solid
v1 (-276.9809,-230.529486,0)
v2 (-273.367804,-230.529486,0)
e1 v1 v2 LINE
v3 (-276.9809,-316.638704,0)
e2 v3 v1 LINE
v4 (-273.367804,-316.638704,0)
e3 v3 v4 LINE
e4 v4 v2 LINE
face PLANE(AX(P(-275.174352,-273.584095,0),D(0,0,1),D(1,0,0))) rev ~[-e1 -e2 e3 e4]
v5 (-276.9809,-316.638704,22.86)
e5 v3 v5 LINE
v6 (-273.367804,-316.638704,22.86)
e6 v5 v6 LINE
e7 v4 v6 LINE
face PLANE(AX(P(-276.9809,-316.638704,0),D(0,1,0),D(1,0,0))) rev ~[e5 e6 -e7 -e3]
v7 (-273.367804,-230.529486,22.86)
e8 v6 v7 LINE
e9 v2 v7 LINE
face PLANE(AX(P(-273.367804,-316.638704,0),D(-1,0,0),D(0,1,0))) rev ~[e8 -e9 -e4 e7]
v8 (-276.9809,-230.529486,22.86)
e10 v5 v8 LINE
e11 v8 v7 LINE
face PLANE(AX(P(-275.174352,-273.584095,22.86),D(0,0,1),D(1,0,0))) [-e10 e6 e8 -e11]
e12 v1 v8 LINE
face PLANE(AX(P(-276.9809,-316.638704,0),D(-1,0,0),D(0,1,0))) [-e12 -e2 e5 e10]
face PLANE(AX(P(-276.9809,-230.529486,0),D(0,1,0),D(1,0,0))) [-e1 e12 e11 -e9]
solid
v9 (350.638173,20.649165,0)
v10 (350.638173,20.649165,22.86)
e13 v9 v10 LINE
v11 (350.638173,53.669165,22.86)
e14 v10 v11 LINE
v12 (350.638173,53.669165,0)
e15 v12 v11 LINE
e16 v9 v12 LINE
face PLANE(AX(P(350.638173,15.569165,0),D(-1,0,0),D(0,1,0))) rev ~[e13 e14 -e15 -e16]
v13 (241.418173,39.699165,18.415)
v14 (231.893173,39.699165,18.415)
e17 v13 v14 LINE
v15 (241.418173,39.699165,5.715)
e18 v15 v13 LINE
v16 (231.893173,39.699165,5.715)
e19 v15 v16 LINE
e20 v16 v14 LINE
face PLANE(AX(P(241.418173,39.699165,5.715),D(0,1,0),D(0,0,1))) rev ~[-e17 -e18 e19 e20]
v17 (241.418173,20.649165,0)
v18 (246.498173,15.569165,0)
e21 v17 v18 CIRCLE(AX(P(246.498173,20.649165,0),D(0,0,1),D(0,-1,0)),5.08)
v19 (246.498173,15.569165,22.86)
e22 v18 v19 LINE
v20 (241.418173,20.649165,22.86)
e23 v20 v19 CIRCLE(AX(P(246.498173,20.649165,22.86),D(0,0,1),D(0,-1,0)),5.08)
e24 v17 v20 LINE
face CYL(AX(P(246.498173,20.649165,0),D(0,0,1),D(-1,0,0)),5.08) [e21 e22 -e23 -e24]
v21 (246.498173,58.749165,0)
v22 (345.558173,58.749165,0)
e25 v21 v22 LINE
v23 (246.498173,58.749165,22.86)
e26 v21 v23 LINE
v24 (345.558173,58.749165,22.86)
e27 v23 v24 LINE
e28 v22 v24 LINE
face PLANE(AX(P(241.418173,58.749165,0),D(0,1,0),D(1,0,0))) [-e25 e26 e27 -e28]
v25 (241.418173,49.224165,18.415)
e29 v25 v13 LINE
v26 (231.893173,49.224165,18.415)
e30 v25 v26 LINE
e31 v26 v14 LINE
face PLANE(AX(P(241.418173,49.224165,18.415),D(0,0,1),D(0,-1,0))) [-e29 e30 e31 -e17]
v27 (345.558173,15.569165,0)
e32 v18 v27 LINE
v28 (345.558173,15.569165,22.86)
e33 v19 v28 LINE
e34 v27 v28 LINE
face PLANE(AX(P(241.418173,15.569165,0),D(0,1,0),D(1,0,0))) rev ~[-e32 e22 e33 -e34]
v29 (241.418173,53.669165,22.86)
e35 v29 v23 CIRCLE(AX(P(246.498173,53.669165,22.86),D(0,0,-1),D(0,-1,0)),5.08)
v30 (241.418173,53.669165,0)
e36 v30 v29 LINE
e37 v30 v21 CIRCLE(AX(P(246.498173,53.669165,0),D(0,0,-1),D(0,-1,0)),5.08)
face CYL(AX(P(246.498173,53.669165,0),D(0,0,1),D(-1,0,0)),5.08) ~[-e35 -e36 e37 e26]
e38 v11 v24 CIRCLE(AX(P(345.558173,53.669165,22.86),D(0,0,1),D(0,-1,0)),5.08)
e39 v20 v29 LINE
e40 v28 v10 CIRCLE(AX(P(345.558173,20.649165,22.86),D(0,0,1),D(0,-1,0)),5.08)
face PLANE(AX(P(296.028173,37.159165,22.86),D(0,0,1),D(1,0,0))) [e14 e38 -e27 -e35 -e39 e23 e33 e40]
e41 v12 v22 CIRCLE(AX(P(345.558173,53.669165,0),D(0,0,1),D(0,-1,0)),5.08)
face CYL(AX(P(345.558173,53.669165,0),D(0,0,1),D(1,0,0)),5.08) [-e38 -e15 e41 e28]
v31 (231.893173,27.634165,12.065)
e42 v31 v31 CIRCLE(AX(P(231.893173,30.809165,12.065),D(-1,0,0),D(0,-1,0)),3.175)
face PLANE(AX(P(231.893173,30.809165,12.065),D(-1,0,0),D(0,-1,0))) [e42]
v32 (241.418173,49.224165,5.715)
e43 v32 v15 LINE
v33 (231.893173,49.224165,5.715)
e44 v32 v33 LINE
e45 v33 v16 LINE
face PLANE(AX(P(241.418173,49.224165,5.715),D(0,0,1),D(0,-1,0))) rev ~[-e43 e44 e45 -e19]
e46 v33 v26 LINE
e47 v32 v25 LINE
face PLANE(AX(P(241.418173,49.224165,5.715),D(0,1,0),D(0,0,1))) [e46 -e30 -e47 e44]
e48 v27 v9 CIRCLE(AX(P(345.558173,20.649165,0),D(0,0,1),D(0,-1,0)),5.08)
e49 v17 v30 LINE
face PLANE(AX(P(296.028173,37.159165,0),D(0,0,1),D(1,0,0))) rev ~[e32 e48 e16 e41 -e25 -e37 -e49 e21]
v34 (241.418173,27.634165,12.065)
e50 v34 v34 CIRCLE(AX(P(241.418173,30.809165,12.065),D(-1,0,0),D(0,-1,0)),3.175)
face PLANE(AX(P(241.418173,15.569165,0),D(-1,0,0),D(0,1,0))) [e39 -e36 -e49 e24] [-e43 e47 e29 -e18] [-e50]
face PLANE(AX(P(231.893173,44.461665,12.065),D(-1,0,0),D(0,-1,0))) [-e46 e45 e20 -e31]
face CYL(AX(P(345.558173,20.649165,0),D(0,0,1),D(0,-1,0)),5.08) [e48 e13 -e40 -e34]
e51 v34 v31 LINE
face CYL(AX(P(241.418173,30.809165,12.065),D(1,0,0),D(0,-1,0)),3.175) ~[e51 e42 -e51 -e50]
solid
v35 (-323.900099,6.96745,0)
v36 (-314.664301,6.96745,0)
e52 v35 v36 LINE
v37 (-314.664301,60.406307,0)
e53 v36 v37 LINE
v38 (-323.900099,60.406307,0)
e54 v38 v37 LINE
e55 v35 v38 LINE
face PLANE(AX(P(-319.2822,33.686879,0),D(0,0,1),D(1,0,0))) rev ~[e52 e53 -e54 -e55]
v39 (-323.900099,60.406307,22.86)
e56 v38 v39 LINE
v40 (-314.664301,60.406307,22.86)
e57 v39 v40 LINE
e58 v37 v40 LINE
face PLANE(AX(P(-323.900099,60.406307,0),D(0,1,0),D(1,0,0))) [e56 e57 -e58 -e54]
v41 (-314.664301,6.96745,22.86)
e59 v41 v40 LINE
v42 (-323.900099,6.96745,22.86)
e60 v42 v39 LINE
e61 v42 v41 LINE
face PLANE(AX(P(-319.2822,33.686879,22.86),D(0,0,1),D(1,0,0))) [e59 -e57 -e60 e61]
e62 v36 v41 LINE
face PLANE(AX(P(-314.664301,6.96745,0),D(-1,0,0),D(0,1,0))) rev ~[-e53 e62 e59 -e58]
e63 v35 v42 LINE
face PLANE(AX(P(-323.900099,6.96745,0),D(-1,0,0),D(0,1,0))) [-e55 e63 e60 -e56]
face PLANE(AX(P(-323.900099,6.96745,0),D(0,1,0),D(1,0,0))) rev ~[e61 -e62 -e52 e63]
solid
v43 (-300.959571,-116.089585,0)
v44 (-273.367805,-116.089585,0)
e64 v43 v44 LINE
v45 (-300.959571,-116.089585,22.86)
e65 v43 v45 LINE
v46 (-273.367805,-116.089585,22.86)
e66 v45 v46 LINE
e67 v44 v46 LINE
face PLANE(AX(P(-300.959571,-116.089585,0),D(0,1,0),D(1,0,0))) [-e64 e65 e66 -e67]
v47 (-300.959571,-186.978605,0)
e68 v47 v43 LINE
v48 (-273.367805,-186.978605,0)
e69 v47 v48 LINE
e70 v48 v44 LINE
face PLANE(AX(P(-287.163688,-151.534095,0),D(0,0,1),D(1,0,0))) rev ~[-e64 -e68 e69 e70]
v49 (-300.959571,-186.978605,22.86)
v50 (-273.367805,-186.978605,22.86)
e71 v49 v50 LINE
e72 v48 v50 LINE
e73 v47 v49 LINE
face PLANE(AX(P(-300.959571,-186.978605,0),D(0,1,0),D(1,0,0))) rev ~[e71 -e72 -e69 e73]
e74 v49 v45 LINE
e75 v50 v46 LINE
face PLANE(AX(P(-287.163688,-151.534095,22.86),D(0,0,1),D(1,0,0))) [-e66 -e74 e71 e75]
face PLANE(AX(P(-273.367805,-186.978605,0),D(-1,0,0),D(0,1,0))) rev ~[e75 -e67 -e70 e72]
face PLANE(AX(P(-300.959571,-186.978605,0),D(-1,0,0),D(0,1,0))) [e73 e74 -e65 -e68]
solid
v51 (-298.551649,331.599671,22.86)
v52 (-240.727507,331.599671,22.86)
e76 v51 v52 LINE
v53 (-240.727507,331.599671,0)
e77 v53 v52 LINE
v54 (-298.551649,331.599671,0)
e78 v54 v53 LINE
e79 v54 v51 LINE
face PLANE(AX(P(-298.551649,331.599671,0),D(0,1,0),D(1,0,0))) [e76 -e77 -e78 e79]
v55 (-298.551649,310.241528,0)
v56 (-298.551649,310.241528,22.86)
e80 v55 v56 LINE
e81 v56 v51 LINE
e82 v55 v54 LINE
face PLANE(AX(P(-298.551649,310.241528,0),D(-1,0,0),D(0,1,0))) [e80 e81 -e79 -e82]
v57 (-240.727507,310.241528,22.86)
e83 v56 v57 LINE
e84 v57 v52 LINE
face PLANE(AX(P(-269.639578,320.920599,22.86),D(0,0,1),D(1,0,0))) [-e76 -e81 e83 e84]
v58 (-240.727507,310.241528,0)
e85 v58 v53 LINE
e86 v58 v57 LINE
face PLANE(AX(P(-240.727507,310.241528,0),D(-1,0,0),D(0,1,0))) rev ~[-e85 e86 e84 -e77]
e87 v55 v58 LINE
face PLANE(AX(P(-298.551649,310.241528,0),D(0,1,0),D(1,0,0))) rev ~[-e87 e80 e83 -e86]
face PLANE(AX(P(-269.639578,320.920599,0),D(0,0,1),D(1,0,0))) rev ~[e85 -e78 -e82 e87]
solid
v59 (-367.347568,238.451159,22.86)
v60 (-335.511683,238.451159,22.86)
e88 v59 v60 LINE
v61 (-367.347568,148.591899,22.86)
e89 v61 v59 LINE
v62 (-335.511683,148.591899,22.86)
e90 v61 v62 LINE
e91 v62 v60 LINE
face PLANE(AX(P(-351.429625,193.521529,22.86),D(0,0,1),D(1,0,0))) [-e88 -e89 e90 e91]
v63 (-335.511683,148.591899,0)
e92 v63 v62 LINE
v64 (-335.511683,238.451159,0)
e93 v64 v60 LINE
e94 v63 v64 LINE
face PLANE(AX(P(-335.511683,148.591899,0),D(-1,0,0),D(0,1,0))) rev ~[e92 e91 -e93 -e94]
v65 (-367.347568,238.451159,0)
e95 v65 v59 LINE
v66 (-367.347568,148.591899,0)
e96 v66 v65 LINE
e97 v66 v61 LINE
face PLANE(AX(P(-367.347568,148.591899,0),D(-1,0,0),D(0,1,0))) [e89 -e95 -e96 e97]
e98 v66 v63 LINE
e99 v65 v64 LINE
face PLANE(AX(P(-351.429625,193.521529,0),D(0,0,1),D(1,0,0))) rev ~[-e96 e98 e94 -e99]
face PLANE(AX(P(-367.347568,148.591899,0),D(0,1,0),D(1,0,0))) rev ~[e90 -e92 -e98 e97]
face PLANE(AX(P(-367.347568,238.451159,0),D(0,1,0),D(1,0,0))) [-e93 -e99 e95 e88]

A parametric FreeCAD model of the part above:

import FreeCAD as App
import Part
import Sketcher
Q = App.Units.Quantity


def edges_at(feature, points):
    """Names of the edges that pass closest to the given points."""
    edges = feature.Shape.Edges
    near = lambda p: min(range(len(edges)), key=lambda i: edges[i].distToShape(Part.Vertex(*p))[0])
    return sorted({f"Edge{near(p) + 1}" for p in points})


def add_polygon(sketch, points):
    """Adds a closed chain of lines whose ends are joined by coincident constraints."""
    first, n = sketch.GeometryCount, len(points)
    for a, b in zip(points, points[1:] + points[:1]):
        sketch.addGeometry(Part.LineSegment(App.Vector(*a, 0), App.Vector(*b, 0)), False)
    for i in range(n):
        sketch.addConstraint(Sketcher.Constraint("Coincident", first + i, 2, first + (i + 1) % n, 1))

doc = App.newDocument("Part")
body = doc.addObject("PartDesign::Body", "Body")
body.AllowCompound = True

# Sketch on XY plane
sketch1 = body.newObject("Sketcher::SketchObject", "Sketch")
sketch1.AttachmentSupport = (doc.getObject("XY_Plane"), [""])
sketch1.MapMode = "FlatFace"
add_polygon(sketch1, [(-277, -230.5), (-277, -316.6), (-273.4, -316.6), (-273.4, -230.5)])  # lines 0-3
add_polygon(sketch1, [(-301, -116.1), (-301, -187), (-273.4, -187), (-273.4, -116.1)])  # lines 4-7
add_polygon(sketch1, [(-323.9, 60.4), (-323.9, 7), (-314.7, 7), (-314.7, 60.4)])  # lines 8-11
add_polygon(sketch1, [(-367.3, 238.5), (-367.3, 148.6), (-335.5, 148.6), (-335.5, 238.5)])  # lines 12-15
add_polygon(sketch1, [(-298.6, 331.6), (-298.6, 310.2), (-240.7, 310.2), (-240.7, 331.6)])  # lines 16-19
add_polygon(sketch1, [(241.4, 58.7), (241.4, 15.6), (350.6, 15.6), (350.6, 58.7)])  # lines 20-23
sketch1.addConstraint([
    Sketcher.Constraint("Vertical", 0),
    Sketcher.Constraint("Horizontal", 1),
    Sketcher.Constraint("Vertical", 2),
    Sketcher.Constraint("Horizontal", 3),
    Sketcher.Constraint("Vertical", 4),
    Sketcher.Constraint("Horizontal", 5),
    Sketcher.Constraint("Vertical", 6),
    Sketcher.Constraint("Horizontal", 7),
    Sketcher.Constraint("Vertical", 8),
    Sketcher.Constraint("Horizontal", 9),
    Sketcher.Constraint("Vertical", 10),
    Sketcher.Constraint("Horizontal", 11),
    Sketcher.Constraint("Vertical", 12),
    Sketcher.Constraint("Horizontal", 13),
    Sketcher.Constraint("Vertical", 14),
    Sketcher.Constraint("Horizontal", 15),
    Sketcher.Constraint("Vertical", 16),
    Sketcher.Constraint("Horizontal", 17),
    Sketcher.Constraint("Vertical", 18),
    Sketcher.Constraint("Horizontal", 19),
    Sketcher.Constraint("Vertical", 20),
    Sketcher.Constraint("Horizontal", 21),
    Sketcher.Constraint("Vertical", 22),
    Sketcher.Constraint("Horizontal", 23),
    Sketcher.Constraint("Vertical", 2, 2, 5, 2),
    Sketcher.Constraint("DistanceX", 21, 1, 21, 2, Q("4.3 in")),
    Sketcher.Constraint("DistanceY", 20, 2, 20, 1, Q("1.7 in")),
    Sketcher.Constraint("DistanceY", 0, 2, 0, 1, 86.109218),
    Sketcher.Constraint("DistanceY", 4, 2, 4, 1, 70.88902),
    Sketcher.Constraint("DistanceY", 12, 2, 12, 1, 89.859261),
    Sketcher.Constraint("DistanceX", 0, 2, -1, 1, 276.9809),
    Sketcher.Constraint("DistanceX", 8, 2, -1, 1, 323.900099),
    Sketcher.Constraint("DistanceX", 9, 2, -1, 1, 314.664301),
    Sketcher.Constraint("DistanceY", -1, 1, 12, 2, 148.591899),
    Sketcher.Constraint("DistanceY", 0, 2, 4, 2, 129.660099),
    Sketcher.Constraint("DistanceX", 1, 1, 1, 2, 3.613095),
    Sketcher.Constraint("DistanceX", 5, 1, 5, 2, 27.591766),
    Sketcher.Constraint("DistanceX", 13, 1, 13, 2, 31.835885),
    Sketcher.Constraint("DistanceX", 17, 1, 17, 2, 57.824143),
    Sketcher.Constraint("DistanceY", 8, 2, 8, 1, 53.438857),
    Sketcher.Constraint("DistanceY", 16, 2, 16, 1, 21.358143),
    Sketcher.Constraint("DistanceY", -1, 1, 8, 2, 6.96745),
    Sketcher.Constraint("DistanceX", 16, 2, -1, 1, 298.551649),
    Sketcher.Constraint("DistanceY", -1, 1, 18, 2, 331.599671),
    Sketcher.Constraint("DistanceX", 12, 2, 11, 2, 43.447469),
    Sketcher.Constraint("DistanceX", 6, 2, 20, 2, 514.785978),
    Sketcher.Constraint("DistanceY", 6, 2, 20, 2, 131.65875),
    Sketcher.Constraint("DistanceY", 0, 2, -1, 1, 316.638704),
])
pad1 = body.newObject("PartDesign::Pad", "Pad")
pad1.Profile = sketch1
pad1.Length = Q("0.9 in")
doc.recompute()

fillet = body.newObject("PartDesign::Fillet", "Fillet")
fillet.Base = (pad1, edges_at(pad1, [
    (350.638, 15.569, 11.43),
    (350.638, 58.749, 11.43),
    (241.418, 15.569, 11.43),
    (241.418, 58.749, 11.43),
]))
fillet.Radius = Q("0.2 in")

# Sketch on YZ plane
sketch2 = body.newObject("Sketcher::SketchObject", "Sketch001")
sketch2.AttachmentSupport = (doc.getObject("YZ_Plane"), [""])
sketch2.MapMode = "FlatFace"
sketch2.AttachmentOffset = App.Placement(App.Vector(0, 0, 241.418173), App.Rotation())
add_polygon(sketch2, [(49.2, 18.4), (49.2, 5.7), (39.7, 5.7), (39.7, 18.4)])  # lines 0-3
sketch2.addGeometry(Part.Circle(App.Vector(30.8, 12.1, 0), App.Vector(0, 0, 1), 3.2), False)  # 4
sketch2.addConstraint([
    Sketcher.Constraint("Vertical", 0),
    Sketcher.Constraint("Horizontal", 1),
    Sketcher.Constraint("Vertical", 2),
    Sketcher.Constraint("Horizontal", 3),
    Sketcher.Constraint("Diameter", 4, Q("0.25 in")),
    Sketcher.Constraint("DistanceY", 0, 2, 0, 1, Q("0.5 in")),
    Sketcher.Constraint("DistanceX", 1, 2, 1, 1, Q("0.375 in")),
    Sketcher.Constraint("DistanceY", 0, 2, 4, 3, Q("0.25 in")),
    Sketcher.Constraint("DistanceX", 4, 3, 1, 2, Q("0.35 in")),
    Sketcher.Constraint("DistanceY", -1, 1, 4, 3, Q("0.475 in")),
    Sketcher.Constraint("DistanceX", -1, 1, 4, 3, 30.809165),
])
pad2 = body.newObject("PartDesign::Pad", "Pad001")
pad2.Profile = sketch2
pad2.Length = Q("0.375 in")
pad2.Reversed = True

doc.recompute()
